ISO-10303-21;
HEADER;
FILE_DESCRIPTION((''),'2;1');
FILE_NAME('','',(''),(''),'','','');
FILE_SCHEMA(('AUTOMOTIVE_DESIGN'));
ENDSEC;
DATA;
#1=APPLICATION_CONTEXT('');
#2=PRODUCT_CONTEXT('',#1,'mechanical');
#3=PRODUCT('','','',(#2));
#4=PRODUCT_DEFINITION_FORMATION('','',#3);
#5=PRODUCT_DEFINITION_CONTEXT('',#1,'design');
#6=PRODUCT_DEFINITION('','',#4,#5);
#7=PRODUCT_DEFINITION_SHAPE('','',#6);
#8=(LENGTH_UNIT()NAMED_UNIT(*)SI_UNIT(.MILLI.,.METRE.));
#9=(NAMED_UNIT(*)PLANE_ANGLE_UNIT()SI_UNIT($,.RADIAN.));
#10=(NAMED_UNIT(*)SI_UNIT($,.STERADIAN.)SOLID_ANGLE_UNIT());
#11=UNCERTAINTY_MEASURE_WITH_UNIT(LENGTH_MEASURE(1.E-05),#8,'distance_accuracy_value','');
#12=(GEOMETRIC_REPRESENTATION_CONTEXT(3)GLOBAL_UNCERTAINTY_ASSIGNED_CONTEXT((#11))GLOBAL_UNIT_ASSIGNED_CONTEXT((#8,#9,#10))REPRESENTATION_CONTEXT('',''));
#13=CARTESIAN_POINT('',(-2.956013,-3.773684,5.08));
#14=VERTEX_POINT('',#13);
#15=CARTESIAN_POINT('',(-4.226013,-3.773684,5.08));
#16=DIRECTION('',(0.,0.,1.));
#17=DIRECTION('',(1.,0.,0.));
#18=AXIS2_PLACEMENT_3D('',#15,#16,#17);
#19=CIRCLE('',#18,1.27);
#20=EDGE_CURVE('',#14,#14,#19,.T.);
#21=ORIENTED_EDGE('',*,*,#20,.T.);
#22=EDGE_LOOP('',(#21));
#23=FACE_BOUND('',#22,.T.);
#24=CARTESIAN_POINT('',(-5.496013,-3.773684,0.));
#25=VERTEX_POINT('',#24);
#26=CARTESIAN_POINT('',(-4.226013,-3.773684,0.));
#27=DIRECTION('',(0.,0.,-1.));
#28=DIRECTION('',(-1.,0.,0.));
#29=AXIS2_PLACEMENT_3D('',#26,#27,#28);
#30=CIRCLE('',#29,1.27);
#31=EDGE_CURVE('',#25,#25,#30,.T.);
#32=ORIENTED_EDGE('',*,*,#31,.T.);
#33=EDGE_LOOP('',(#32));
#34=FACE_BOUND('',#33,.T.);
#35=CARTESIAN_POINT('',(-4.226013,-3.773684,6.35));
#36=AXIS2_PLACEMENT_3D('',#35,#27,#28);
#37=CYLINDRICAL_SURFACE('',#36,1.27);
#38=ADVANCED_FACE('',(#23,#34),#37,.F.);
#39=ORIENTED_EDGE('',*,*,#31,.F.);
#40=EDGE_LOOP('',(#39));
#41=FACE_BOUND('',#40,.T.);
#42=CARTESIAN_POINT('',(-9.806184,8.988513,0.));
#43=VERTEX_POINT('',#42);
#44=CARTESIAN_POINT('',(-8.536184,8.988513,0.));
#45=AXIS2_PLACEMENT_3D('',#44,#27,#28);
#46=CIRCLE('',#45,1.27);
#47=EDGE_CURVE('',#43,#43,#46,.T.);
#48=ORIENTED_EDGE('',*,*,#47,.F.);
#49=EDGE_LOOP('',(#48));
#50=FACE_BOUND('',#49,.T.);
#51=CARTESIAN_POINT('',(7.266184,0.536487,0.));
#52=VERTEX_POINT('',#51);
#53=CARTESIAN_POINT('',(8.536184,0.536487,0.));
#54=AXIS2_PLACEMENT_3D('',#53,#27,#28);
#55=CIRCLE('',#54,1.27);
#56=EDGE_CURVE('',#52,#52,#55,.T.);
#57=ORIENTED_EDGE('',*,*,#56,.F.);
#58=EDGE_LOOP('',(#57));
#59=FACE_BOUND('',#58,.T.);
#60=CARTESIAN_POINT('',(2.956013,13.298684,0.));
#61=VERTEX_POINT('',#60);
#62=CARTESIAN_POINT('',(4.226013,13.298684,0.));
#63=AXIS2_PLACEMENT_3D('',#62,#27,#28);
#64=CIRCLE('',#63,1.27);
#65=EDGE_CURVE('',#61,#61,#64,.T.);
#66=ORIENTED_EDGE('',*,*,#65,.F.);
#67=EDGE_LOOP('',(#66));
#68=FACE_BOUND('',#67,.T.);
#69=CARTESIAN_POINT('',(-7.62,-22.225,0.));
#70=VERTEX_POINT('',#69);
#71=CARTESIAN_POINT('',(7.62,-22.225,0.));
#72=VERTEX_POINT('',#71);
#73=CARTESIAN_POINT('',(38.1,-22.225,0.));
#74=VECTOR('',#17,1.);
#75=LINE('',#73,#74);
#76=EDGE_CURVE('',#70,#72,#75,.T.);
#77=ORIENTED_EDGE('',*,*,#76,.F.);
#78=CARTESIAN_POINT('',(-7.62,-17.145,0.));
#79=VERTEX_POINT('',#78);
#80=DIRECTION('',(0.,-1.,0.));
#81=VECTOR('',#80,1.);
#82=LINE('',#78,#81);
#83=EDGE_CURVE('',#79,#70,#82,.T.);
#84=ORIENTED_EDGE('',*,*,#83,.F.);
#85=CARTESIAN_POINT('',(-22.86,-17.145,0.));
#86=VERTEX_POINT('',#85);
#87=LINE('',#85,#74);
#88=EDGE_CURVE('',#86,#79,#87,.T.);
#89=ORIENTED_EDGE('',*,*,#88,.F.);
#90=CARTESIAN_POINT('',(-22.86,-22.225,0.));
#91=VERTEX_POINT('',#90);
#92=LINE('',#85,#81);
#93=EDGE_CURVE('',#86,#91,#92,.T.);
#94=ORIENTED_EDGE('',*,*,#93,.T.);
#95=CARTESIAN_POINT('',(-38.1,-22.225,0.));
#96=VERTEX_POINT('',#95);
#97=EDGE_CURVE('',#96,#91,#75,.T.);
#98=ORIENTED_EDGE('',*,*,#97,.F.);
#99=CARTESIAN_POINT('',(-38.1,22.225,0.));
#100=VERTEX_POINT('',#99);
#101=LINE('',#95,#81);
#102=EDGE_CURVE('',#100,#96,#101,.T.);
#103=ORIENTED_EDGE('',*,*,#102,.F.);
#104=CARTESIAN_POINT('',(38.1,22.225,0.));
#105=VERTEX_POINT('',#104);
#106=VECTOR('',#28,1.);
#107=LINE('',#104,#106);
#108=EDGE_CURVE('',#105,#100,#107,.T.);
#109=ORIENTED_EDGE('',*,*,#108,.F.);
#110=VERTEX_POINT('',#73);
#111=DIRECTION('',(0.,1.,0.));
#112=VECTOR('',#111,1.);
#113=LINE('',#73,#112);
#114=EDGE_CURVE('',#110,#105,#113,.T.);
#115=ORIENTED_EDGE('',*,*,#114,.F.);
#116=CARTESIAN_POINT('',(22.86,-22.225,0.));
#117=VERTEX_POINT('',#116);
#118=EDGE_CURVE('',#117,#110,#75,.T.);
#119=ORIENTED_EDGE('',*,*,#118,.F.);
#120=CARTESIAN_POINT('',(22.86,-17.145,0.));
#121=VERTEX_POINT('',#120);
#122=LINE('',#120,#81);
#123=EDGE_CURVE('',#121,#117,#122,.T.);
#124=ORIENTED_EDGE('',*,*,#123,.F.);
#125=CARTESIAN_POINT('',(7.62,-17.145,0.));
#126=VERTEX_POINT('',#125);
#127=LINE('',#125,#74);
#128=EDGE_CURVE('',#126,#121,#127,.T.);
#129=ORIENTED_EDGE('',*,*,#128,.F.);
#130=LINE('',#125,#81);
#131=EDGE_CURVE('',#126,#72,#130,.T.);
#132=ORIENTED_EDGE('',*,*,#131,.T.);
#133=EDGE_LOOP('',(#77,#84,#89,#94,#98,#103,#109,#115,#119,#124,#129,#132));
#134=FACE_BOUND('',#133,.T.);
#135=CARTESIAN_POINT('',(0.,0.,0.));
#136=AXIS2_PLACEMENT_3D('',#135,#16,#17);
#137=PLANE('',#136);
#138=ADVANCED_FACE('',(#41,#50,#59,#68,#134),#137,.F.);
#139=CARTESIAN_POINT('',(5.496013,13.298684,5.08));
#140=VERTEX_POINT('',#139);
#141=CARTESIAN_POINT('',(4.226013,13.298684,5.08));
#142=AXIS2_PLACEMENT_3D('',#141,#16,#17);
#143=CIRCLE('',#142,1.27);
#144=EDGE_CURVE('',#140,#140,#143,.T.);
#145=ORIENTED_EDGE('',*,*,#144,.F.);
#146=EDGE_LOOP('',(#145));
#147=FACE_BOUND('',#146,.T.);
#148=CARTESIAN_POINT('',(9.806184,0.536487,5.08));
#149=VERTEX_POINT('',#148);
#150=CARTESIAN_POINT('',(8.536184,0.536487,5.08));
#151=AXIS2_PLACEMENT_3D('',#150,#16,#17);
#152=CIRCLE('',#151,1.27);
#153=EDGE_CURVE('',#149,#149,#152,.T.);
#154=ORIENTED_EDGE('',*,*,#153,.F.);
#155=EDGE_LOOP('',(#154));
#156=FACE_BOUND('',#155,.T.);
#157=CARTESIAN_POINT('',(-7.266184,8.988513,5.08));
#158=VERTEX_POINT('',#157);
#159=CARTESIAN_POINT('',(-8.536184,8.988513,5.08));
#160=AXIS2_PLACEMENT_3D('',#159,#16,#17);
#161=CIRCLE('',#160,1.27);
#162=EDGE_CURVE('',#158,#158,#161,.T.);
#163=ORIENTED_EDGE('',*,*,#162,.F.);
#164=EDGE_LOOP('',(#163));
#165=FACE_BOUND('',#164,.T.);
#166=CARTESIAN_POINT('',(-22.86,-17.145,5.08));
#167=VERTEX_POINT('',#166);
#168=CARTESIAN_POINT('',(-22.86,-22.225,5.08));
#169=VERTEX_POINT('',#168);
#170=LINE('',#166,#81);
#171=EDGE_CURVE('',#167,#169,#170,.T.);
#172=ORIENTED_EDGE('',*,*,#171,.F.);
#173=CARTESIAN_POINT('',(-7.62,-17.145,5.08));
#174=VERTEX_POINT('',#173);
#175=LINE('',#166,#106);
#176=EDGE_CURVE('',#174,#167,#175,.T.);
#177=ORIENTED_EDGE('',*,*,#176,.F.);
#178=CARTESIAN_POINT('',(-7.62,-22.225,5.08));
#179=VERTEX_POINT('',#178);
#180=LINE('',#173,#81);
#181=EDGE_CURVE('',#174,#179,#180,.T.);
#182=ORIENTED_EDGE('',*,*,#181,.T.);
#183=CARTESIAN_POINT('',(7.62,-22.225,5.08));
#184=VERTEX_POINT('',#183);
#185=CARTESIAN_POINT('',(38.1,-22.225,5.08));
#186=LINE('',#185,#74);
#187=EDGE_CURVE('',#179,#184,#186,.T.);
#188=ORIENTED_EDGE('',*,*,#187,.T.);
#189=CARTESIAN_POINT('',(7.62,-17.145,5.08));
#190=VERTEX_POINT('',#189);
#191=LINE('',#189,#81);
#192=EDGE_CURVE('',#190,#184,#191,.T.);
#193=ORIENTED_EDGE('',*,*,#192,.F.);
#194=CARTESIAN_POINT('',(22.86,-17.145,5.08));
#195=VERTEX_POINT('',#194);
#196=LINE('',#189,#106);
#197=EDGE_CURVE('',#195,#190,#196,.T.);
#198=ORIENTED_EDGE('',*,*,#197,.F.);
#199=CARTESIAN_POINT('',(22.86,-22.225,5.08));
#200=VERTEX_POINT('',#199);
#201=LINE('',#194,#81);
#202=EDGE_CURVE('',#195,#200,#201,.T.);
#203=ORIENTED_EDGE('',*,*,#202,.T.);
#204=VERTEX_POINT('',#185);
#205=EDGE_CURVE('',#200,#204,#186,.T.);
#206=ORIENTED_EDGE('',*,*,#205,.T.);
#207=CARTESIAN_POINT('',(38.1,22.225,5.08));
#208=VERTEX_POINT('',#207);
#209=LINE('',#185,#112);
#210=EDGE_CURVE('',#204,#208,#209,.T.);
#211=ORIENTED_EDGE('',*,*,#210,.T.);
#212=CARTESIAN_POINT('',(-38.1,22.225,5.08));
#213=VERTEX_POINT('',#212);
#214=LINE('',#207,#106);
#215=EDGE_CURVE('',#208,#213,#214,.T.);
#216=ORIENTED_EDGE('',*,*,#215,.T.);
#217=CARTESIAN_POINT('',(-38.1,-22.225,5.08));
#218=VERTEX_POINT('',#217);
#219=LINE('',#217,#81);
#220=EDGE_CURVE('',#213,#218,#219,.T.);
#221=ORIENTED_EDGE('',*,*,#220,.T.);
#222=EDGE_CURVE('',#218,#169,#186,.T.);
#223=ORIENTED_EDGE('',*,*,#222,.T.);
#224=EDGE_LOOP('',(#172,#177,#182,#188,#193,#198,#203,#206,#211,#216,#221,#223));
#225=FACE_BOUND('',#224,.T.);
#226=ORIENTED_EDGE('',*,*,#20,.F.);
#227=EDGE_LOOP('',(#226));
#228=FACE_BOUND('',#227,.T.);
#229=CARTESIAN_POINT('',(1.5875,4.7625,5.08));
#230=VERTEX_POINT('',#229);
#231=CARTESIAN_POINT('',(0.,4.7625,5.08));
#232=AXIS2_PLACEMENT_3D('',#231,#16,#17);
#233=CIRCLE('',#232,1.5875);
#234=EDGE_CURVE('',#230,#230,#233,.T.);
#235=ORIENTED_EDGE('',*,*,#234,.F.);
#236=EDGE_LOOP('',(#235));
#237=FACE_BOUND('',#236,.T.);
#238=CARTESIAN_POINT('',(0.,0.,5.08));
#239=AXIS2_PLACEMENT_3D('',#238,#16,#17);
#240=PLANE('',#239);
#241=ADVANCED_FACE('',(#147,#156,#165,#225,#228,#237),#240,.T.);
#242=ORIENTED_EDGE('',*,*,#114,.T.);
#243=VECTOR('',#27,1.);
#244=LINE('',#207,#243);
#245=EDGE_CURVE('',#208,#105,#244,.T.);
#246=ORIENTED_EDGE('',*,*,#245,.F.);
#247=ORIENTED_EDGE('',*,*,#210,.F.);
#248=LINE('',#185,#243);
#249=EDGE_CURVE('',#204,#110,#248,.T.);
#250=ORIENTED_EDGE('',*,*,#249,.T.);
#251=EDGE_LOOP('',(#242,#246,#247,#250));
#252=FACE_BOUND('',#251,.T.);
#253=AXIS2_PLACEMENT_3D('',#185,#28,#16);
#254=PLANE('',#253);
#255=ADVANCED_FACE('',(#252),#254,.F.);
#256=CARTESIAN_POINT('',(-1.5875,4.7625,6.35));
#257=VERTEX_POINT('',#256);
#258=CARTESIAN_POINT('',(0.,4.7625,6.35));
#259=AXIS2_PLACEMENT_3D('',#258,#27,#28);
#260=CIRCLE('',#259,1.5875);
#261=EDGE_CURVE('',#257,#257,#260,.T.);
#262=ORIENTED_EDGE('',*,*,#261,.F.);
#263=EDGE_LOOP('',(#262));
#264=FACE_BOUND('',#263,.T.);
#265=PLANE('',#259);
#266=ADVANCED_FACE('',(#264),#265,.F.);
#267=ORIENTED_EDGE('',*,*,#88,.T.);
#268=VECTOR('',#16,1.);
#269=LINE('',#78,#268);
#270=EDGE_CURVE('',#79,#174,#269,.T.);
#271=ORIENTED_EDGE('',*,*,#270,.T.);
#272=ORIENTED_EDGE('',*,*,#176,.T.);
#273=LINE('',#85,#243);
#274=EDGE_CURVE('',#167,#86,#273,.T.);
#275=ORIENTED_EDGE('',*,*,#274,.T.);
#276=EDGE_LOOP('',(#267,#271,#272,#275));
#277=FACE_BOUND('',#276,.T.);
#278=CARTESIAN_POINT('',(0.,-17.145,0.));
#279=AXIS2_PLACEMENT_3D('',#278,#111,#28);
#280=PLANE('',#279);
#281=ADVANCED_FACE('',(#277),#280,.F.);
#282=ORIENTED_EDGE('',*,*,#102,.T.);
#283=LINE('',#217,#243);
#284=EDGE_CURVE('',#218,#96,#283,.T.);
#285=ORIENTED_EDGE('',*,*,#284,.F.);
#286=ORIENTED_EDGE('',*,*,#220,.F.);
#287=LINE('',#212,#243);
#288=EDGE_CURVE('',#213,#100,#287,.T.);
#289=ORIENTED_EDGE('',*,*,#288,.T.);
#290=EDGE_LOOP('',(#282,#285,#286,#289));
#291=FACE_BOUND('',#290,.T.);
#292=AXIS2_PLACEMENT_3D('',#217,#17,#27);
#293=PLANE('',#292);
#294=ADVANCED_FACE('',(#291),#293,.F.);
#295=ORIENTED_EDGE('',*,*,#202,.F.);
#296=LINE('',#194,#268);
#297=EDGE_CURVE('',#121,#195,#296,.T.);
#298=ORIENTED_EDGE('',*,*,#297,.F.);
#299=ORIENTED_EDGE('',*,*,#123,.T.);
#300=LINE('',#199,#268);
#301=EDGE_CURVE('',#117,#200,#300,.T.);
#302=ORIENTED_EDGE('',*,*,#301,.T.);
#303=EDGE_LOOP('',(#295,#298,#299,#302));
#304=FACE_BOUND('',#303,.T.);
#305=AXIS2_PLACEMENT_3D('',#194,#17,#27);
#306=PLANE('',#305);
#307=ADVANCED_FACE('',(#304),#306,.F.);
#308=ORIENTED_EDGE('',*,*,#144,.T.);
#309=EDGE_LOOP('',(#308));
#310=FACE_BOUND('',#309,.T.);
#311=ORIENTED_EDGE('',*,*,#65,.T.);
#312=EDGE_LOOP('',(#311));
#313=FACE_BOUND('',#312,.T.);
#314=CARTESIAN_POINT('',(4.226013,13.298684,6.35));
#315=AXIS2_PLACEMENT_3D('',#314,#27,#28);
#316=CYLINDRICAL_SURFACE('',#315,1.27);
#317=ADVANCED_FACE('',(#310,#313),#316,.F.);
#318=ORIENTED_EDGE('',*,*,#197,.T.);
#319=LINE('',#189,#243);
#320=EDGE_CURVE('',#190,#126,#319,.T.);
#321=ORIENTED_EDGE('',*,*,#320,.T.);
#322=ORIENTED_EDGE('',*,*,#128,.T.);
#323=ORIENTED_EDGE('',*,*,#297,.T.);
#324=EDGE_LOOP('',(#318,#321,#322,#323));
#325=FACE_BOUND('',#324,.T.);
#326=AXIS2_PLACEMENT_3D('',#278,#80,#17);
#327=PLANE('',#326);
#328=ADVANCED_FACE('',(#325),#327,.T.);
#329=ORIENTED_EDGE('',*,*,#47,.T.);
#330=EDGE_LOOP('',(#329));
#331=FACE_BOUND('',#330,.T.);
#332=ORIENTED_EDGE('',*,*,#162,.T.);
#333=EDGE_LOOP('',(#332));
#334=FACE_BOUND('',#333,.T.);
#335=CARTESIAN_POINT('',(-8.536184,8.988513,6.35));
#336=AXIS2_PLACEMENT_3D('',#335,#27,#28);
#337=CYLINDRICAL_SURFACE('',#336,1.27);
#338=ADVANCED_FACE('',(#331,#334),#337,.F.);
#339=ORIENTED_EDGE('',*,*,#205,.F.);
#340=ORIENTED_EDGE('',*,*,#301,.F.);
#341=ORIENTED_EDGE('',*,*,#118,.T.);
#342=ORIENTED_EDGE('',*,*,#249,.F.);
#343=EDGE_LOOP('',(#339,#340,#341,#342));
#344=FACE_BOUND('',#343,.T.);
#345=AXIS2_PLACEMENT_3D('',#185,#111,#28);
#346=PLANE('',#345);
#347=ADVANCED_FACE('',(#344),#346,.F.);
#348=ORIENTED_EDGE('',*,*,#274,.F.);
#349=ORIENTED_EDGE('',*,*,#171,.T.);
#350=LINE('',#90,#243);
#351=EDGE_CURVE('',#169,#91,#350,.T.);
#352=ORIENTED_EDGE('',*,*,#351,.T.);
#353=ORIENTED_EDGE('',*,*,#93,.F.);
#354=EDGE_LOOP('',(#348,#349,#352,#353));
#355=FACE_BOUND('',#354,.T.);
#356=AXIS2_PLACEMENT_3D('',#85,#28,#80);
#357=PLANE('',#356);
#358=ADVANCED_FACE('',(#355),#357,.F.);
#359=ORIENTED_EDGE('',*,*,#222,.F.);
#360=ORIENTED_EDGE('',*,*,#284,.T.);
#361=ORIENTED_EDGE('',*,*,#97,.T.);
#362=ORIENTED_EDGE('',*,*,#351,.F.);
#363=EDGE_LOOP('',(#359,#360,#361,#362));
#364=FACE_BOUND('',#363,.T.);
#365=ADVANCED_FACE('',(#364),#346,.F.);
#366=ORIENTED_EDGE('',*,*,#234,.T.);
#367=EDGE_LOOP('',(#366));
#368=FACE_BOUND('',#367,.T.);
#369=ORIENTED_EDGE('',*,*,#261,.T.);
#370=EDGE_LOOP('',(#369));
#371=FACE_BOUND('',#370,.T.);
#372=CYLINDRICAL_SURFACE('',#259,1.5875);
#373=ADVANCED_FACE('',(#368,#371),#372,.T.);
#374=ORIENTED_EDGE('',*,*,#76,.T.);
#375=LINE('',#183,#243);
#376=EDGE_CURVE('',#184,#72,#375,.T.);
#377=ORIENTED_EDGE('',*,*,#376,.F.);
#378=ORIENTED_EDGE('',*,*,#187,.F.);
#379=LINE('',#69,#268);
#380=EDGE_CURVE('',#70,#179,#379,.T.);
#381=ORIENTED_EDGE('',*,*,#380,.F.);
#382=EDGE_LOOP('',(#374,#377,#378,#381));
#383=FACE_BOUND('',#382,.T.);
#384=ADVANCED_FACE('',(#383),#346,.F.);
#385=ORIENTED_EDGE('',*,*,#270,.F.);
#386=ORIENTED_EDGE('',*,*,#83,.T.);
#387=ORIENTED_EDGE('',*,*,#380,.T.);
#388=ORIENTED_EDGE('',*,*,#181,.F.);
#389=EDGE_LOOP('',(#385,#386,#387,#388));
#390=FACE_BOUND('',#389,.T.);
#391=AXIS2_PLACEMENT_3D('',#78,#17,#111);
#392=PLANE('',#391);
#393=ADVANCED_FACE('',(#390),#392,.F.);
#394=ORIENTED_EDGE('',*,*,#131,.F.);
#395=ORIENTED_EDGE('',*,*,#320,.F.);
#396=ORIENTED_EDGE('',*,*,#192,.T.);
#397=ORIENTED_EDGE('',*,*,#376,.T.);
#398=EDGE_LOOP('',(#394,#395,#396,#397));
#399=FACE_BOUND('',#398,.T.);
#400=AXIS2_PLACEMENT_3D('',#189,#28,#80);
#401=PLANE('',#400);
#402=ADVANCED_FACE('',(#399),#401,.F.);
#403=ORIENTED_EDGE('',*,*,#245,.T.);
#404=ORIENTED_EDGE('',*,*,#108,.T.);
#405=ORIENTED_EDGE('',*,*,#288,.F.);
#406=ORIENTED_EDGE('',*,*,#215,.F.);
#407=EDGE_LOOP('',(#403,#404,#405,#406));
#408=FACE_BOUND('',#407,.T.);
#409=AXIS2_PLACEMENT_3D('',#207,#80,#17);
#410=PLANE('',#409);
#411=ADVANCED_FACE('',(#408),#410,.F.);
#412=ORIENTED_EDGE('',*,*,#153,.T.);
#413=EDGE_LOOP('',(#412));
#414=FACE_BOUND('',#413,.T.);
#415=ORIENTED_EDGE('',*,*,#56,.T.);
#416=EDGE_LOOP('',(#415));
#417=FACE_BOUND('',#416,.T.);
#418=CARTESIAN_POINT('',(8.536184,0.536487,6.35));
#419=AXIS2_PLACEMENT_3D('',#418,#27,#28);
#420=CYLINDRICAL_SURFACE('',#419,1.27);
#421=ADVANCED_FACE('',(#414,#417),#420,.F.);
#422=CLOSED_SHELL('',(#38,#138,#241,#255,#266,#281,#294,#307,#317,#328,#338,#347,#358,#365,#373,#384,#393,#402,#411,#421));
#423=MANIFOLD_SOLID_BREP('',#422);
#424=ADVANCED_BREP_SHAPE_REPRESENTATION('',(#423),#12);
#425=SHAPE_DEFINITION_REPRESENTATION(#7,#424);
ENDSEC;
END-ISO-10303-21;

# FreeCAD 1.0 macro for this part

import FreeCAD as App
import Part
import Sketcher

V = App.Vector
Q = App.Units.Quantity


def add_polygon(sketch, points):
    """Adds a closed chain of lines whose ends are joined by coincident constraints."""
    first, n = sketch.GeometryCount, len(points)
    for a, b in zip(points, points[1:] + points[:1]):
        sketch.addGeometry(Part.LineSegment(App.Vector(*a, 0), App.Vector(*b, 0)), False)
    for i in range(n):
        sketch.addConstraint(Sketcher.Constraint("Coincident", first + i, 2, first + (i + 1) % n, 1))

doc = App.newDocument("Part")
body = doc.addObject("PartDesign::Body", "Body")

sketch1 = body.newObject("Sketcher::SketchObject", "Sketch")
sketch1.AttachmentSupport = (doc.getObject("XY_Plane"), [""])
sketch1.MapMode = "FlatFace"
add_polygon(sketch1, [(-38, 22), (-38, -22), (38, -22), (38, 22)])
sketch1.addConstraint(Sketcher.Constraint("Vertical", 0))
sketch1.addConstraint(Sketcher.Constraint("Horizontal", 1))
sketch1.addConstraint(Sketcher.Constraint("Vertical", 2))
sketch1.addConstraint(Sketcher.Constraint("Horizontal", 3))
sketch1.addConstraint(Sketcher.Constraint("Symmetric", 0, 2, 2, 2, -1, 1))
sketch1.addConstraint(Sketcher.Constraint("DistanceX", 1, 1, 1, 2, Q("3 in")))
sketch1.addConstraint(Sketcher.Constraint("DistanceY", 0, 2, 0, 1, Q("1.75 in")))
pad1 = body.newObject("PartDesign::Pad", "Pad")
pad1.Profile = sketch1
pad1.Length = Q("0.2 in")

sketch2 = body.newObject("Sketcher::SketchObject", "Sketch001")
sketch2.AttachmentSupport = (doc.getObject("XY_Plane"), [""])
sketch2.MapMode = "FlatFace"
sketch2.addGeometry(Part.Circle(V(0, 4.8, 0), V(0, 0, 1), 1.6), False)
sketch2.addConstraint(Sketcher.Constraint("PointOnObject", 0, 3, -2))
sketch2.addConstraint(Sketcher.Constraint("Diameter", 0, Q("0.125 in")))
sketch2.addConstraint(Sketcher.Constraint("DistanceY", -1, 1, 0, 3, Q("0.1875 in")))
pad2 = body.newObject("PartDesign::Pad", "Pad001")
pad2.Profile = sketch2
pad2.Length = Q("0.25 in")

sketch3 = body.newObject("Sketcher::SketchObject", "Sketch002")
sketch3.AttachmentSupport = (doc.getObject("XY_Plane"), [""])
sketch3.MapMode = "FlatFace"
sketch3.addGeometry(Part.Circle(V(-4.2, -3.8, 0), V(0, 0, 1), 1.3), False)
sketch3.addGeometry(Part.Circle(V(8.5, 0.5, 0), V(0, 0, 1), 1.3), False)
sketch3.addGeometry(Part.Circle(V(4.2, 13.3, 0), V(0, 0, 1), 1.3), False)
sketch3.addGeometry(Part.Circle(V(-8.5, 9, 0), V(0, 0, 1), 1.3), False)
sketch3.addConstraint(Sketcher.Constraint("Equal", 0, 1))
sketch3.addConstraint(Sketcher.Constraint("Equal", 1, 2))
sketch3.addConstraint(Sketcher.Constraint("Equal", 2, 3))
sketch3.addConstraint(Sketcher.Constraint("Diameter", 0, Q("0.1 in")))
sketch3.addConstraint(Sketcher.Constraint("DistanceY", 0, 3, 1, 3, 4.310171))
sketch3.addConstraint(Sketcher.Constraint("DistanceX", 2, 3, 1, 3, 4.310171))
sketch3.addConstraint(Sketcher.Constraint("DistanceY", 0, 3, 2, 3, 17.072368))
sketch3.addConstraint(Sketcher.Constraint("DistanceX", 3, 3, 0, 3, 4.310171))
sketch3.addConstraint(Sketcher.Constraint("DistanceY", 3, 3, 2, 3, 4.310171))
sketch3.addConstraint(Sketcher.Constraint("DistanceX", 3, 3, 1, 3, 17.072368))
sketch3.addConstraint(Sketcher.Constraint("DistanceX", 0, 3, -1, 1, 4.226013))
sketch3.addConstraint(Sketcher.Constraint("DistanceY", 0, 3, -1, 1, 3.773684))
pocket1 = body.newObject("PartDesign::Pocket", "Pocket")
pocket1.Profile = sketch3
pocket1.Length = Q("0.25 in")
pocket1.Reversed = True

sketch4 = body.newObject("Sketcher::SketchObject", "Sketch003")
sketch4.AttachmentSupport = (doc.getObject("XZ_Plane"), [""])
sketch4.MapMode = "FlatFace"
sketch4.AttachmentOffset = App.Placement(V(0, 0, 0.875 * 25.4), App.Rotation())
add_polygon(sketch4, [(-8, 0), (-8, 5), (-23, 5), (-23, 0)])
add_polygon(sketch4, [(23, 0), (23, 5), (8, 5), (8, 0)])
sketch4.addConstraint(Sketcher.Constraint("Vertical", 0))
sketch4.addConstraint(Sketcher.Constraint("Horizontal", 1))
sketch4.addConstraint(Sketcher.Constraint("Vertical", 2))
sketch4.addConstraint(Sketcher.Constraint("Horizontal", 3))
sketch4.addConstraint(Sketcher.Constraint("Vertical", 4))
sketch4.addConstraint(Sketcher.Constraint("Horizontal", 5))
sketch4.addConstraint(Sketcher.Constraint("Vertical", 6))
sketch4.addConstraint(Sketcher.Constraint("Horizontal", 7))
sketch4.addConstraint(Sketcher.Constraint("Symmetric", 3, 2, 6, 2, -1, 1))
sketch4.addConstraint(Sketcher.Constraint("Symmetric", 1, 2, 4, 2, -2))
sketch4.addConstraint(Sketcher.Constraint("PointOnObject", 2, 2, -1))
sketch4.addConstraint(Sketcher.Constraint("DistanceX", 1, 2, 1, 1, Q("0.6 in")))
sketch4.addConstraint(Sketcher.Constraint("DistanceY", 0, 1, 0, 2, Q("0.2 in")))
sketch4.addConstraint(Sketcher.Constraint("DistanceX", 0, 2, -1, 1, Q("0.3 in")))
pocket2 = body.newObject("PartDesign::Pocket", "Pocket001")
pocket2.Profile = sketch4
pocket2.Length = Q("0.2 in")

doc.recompute()
